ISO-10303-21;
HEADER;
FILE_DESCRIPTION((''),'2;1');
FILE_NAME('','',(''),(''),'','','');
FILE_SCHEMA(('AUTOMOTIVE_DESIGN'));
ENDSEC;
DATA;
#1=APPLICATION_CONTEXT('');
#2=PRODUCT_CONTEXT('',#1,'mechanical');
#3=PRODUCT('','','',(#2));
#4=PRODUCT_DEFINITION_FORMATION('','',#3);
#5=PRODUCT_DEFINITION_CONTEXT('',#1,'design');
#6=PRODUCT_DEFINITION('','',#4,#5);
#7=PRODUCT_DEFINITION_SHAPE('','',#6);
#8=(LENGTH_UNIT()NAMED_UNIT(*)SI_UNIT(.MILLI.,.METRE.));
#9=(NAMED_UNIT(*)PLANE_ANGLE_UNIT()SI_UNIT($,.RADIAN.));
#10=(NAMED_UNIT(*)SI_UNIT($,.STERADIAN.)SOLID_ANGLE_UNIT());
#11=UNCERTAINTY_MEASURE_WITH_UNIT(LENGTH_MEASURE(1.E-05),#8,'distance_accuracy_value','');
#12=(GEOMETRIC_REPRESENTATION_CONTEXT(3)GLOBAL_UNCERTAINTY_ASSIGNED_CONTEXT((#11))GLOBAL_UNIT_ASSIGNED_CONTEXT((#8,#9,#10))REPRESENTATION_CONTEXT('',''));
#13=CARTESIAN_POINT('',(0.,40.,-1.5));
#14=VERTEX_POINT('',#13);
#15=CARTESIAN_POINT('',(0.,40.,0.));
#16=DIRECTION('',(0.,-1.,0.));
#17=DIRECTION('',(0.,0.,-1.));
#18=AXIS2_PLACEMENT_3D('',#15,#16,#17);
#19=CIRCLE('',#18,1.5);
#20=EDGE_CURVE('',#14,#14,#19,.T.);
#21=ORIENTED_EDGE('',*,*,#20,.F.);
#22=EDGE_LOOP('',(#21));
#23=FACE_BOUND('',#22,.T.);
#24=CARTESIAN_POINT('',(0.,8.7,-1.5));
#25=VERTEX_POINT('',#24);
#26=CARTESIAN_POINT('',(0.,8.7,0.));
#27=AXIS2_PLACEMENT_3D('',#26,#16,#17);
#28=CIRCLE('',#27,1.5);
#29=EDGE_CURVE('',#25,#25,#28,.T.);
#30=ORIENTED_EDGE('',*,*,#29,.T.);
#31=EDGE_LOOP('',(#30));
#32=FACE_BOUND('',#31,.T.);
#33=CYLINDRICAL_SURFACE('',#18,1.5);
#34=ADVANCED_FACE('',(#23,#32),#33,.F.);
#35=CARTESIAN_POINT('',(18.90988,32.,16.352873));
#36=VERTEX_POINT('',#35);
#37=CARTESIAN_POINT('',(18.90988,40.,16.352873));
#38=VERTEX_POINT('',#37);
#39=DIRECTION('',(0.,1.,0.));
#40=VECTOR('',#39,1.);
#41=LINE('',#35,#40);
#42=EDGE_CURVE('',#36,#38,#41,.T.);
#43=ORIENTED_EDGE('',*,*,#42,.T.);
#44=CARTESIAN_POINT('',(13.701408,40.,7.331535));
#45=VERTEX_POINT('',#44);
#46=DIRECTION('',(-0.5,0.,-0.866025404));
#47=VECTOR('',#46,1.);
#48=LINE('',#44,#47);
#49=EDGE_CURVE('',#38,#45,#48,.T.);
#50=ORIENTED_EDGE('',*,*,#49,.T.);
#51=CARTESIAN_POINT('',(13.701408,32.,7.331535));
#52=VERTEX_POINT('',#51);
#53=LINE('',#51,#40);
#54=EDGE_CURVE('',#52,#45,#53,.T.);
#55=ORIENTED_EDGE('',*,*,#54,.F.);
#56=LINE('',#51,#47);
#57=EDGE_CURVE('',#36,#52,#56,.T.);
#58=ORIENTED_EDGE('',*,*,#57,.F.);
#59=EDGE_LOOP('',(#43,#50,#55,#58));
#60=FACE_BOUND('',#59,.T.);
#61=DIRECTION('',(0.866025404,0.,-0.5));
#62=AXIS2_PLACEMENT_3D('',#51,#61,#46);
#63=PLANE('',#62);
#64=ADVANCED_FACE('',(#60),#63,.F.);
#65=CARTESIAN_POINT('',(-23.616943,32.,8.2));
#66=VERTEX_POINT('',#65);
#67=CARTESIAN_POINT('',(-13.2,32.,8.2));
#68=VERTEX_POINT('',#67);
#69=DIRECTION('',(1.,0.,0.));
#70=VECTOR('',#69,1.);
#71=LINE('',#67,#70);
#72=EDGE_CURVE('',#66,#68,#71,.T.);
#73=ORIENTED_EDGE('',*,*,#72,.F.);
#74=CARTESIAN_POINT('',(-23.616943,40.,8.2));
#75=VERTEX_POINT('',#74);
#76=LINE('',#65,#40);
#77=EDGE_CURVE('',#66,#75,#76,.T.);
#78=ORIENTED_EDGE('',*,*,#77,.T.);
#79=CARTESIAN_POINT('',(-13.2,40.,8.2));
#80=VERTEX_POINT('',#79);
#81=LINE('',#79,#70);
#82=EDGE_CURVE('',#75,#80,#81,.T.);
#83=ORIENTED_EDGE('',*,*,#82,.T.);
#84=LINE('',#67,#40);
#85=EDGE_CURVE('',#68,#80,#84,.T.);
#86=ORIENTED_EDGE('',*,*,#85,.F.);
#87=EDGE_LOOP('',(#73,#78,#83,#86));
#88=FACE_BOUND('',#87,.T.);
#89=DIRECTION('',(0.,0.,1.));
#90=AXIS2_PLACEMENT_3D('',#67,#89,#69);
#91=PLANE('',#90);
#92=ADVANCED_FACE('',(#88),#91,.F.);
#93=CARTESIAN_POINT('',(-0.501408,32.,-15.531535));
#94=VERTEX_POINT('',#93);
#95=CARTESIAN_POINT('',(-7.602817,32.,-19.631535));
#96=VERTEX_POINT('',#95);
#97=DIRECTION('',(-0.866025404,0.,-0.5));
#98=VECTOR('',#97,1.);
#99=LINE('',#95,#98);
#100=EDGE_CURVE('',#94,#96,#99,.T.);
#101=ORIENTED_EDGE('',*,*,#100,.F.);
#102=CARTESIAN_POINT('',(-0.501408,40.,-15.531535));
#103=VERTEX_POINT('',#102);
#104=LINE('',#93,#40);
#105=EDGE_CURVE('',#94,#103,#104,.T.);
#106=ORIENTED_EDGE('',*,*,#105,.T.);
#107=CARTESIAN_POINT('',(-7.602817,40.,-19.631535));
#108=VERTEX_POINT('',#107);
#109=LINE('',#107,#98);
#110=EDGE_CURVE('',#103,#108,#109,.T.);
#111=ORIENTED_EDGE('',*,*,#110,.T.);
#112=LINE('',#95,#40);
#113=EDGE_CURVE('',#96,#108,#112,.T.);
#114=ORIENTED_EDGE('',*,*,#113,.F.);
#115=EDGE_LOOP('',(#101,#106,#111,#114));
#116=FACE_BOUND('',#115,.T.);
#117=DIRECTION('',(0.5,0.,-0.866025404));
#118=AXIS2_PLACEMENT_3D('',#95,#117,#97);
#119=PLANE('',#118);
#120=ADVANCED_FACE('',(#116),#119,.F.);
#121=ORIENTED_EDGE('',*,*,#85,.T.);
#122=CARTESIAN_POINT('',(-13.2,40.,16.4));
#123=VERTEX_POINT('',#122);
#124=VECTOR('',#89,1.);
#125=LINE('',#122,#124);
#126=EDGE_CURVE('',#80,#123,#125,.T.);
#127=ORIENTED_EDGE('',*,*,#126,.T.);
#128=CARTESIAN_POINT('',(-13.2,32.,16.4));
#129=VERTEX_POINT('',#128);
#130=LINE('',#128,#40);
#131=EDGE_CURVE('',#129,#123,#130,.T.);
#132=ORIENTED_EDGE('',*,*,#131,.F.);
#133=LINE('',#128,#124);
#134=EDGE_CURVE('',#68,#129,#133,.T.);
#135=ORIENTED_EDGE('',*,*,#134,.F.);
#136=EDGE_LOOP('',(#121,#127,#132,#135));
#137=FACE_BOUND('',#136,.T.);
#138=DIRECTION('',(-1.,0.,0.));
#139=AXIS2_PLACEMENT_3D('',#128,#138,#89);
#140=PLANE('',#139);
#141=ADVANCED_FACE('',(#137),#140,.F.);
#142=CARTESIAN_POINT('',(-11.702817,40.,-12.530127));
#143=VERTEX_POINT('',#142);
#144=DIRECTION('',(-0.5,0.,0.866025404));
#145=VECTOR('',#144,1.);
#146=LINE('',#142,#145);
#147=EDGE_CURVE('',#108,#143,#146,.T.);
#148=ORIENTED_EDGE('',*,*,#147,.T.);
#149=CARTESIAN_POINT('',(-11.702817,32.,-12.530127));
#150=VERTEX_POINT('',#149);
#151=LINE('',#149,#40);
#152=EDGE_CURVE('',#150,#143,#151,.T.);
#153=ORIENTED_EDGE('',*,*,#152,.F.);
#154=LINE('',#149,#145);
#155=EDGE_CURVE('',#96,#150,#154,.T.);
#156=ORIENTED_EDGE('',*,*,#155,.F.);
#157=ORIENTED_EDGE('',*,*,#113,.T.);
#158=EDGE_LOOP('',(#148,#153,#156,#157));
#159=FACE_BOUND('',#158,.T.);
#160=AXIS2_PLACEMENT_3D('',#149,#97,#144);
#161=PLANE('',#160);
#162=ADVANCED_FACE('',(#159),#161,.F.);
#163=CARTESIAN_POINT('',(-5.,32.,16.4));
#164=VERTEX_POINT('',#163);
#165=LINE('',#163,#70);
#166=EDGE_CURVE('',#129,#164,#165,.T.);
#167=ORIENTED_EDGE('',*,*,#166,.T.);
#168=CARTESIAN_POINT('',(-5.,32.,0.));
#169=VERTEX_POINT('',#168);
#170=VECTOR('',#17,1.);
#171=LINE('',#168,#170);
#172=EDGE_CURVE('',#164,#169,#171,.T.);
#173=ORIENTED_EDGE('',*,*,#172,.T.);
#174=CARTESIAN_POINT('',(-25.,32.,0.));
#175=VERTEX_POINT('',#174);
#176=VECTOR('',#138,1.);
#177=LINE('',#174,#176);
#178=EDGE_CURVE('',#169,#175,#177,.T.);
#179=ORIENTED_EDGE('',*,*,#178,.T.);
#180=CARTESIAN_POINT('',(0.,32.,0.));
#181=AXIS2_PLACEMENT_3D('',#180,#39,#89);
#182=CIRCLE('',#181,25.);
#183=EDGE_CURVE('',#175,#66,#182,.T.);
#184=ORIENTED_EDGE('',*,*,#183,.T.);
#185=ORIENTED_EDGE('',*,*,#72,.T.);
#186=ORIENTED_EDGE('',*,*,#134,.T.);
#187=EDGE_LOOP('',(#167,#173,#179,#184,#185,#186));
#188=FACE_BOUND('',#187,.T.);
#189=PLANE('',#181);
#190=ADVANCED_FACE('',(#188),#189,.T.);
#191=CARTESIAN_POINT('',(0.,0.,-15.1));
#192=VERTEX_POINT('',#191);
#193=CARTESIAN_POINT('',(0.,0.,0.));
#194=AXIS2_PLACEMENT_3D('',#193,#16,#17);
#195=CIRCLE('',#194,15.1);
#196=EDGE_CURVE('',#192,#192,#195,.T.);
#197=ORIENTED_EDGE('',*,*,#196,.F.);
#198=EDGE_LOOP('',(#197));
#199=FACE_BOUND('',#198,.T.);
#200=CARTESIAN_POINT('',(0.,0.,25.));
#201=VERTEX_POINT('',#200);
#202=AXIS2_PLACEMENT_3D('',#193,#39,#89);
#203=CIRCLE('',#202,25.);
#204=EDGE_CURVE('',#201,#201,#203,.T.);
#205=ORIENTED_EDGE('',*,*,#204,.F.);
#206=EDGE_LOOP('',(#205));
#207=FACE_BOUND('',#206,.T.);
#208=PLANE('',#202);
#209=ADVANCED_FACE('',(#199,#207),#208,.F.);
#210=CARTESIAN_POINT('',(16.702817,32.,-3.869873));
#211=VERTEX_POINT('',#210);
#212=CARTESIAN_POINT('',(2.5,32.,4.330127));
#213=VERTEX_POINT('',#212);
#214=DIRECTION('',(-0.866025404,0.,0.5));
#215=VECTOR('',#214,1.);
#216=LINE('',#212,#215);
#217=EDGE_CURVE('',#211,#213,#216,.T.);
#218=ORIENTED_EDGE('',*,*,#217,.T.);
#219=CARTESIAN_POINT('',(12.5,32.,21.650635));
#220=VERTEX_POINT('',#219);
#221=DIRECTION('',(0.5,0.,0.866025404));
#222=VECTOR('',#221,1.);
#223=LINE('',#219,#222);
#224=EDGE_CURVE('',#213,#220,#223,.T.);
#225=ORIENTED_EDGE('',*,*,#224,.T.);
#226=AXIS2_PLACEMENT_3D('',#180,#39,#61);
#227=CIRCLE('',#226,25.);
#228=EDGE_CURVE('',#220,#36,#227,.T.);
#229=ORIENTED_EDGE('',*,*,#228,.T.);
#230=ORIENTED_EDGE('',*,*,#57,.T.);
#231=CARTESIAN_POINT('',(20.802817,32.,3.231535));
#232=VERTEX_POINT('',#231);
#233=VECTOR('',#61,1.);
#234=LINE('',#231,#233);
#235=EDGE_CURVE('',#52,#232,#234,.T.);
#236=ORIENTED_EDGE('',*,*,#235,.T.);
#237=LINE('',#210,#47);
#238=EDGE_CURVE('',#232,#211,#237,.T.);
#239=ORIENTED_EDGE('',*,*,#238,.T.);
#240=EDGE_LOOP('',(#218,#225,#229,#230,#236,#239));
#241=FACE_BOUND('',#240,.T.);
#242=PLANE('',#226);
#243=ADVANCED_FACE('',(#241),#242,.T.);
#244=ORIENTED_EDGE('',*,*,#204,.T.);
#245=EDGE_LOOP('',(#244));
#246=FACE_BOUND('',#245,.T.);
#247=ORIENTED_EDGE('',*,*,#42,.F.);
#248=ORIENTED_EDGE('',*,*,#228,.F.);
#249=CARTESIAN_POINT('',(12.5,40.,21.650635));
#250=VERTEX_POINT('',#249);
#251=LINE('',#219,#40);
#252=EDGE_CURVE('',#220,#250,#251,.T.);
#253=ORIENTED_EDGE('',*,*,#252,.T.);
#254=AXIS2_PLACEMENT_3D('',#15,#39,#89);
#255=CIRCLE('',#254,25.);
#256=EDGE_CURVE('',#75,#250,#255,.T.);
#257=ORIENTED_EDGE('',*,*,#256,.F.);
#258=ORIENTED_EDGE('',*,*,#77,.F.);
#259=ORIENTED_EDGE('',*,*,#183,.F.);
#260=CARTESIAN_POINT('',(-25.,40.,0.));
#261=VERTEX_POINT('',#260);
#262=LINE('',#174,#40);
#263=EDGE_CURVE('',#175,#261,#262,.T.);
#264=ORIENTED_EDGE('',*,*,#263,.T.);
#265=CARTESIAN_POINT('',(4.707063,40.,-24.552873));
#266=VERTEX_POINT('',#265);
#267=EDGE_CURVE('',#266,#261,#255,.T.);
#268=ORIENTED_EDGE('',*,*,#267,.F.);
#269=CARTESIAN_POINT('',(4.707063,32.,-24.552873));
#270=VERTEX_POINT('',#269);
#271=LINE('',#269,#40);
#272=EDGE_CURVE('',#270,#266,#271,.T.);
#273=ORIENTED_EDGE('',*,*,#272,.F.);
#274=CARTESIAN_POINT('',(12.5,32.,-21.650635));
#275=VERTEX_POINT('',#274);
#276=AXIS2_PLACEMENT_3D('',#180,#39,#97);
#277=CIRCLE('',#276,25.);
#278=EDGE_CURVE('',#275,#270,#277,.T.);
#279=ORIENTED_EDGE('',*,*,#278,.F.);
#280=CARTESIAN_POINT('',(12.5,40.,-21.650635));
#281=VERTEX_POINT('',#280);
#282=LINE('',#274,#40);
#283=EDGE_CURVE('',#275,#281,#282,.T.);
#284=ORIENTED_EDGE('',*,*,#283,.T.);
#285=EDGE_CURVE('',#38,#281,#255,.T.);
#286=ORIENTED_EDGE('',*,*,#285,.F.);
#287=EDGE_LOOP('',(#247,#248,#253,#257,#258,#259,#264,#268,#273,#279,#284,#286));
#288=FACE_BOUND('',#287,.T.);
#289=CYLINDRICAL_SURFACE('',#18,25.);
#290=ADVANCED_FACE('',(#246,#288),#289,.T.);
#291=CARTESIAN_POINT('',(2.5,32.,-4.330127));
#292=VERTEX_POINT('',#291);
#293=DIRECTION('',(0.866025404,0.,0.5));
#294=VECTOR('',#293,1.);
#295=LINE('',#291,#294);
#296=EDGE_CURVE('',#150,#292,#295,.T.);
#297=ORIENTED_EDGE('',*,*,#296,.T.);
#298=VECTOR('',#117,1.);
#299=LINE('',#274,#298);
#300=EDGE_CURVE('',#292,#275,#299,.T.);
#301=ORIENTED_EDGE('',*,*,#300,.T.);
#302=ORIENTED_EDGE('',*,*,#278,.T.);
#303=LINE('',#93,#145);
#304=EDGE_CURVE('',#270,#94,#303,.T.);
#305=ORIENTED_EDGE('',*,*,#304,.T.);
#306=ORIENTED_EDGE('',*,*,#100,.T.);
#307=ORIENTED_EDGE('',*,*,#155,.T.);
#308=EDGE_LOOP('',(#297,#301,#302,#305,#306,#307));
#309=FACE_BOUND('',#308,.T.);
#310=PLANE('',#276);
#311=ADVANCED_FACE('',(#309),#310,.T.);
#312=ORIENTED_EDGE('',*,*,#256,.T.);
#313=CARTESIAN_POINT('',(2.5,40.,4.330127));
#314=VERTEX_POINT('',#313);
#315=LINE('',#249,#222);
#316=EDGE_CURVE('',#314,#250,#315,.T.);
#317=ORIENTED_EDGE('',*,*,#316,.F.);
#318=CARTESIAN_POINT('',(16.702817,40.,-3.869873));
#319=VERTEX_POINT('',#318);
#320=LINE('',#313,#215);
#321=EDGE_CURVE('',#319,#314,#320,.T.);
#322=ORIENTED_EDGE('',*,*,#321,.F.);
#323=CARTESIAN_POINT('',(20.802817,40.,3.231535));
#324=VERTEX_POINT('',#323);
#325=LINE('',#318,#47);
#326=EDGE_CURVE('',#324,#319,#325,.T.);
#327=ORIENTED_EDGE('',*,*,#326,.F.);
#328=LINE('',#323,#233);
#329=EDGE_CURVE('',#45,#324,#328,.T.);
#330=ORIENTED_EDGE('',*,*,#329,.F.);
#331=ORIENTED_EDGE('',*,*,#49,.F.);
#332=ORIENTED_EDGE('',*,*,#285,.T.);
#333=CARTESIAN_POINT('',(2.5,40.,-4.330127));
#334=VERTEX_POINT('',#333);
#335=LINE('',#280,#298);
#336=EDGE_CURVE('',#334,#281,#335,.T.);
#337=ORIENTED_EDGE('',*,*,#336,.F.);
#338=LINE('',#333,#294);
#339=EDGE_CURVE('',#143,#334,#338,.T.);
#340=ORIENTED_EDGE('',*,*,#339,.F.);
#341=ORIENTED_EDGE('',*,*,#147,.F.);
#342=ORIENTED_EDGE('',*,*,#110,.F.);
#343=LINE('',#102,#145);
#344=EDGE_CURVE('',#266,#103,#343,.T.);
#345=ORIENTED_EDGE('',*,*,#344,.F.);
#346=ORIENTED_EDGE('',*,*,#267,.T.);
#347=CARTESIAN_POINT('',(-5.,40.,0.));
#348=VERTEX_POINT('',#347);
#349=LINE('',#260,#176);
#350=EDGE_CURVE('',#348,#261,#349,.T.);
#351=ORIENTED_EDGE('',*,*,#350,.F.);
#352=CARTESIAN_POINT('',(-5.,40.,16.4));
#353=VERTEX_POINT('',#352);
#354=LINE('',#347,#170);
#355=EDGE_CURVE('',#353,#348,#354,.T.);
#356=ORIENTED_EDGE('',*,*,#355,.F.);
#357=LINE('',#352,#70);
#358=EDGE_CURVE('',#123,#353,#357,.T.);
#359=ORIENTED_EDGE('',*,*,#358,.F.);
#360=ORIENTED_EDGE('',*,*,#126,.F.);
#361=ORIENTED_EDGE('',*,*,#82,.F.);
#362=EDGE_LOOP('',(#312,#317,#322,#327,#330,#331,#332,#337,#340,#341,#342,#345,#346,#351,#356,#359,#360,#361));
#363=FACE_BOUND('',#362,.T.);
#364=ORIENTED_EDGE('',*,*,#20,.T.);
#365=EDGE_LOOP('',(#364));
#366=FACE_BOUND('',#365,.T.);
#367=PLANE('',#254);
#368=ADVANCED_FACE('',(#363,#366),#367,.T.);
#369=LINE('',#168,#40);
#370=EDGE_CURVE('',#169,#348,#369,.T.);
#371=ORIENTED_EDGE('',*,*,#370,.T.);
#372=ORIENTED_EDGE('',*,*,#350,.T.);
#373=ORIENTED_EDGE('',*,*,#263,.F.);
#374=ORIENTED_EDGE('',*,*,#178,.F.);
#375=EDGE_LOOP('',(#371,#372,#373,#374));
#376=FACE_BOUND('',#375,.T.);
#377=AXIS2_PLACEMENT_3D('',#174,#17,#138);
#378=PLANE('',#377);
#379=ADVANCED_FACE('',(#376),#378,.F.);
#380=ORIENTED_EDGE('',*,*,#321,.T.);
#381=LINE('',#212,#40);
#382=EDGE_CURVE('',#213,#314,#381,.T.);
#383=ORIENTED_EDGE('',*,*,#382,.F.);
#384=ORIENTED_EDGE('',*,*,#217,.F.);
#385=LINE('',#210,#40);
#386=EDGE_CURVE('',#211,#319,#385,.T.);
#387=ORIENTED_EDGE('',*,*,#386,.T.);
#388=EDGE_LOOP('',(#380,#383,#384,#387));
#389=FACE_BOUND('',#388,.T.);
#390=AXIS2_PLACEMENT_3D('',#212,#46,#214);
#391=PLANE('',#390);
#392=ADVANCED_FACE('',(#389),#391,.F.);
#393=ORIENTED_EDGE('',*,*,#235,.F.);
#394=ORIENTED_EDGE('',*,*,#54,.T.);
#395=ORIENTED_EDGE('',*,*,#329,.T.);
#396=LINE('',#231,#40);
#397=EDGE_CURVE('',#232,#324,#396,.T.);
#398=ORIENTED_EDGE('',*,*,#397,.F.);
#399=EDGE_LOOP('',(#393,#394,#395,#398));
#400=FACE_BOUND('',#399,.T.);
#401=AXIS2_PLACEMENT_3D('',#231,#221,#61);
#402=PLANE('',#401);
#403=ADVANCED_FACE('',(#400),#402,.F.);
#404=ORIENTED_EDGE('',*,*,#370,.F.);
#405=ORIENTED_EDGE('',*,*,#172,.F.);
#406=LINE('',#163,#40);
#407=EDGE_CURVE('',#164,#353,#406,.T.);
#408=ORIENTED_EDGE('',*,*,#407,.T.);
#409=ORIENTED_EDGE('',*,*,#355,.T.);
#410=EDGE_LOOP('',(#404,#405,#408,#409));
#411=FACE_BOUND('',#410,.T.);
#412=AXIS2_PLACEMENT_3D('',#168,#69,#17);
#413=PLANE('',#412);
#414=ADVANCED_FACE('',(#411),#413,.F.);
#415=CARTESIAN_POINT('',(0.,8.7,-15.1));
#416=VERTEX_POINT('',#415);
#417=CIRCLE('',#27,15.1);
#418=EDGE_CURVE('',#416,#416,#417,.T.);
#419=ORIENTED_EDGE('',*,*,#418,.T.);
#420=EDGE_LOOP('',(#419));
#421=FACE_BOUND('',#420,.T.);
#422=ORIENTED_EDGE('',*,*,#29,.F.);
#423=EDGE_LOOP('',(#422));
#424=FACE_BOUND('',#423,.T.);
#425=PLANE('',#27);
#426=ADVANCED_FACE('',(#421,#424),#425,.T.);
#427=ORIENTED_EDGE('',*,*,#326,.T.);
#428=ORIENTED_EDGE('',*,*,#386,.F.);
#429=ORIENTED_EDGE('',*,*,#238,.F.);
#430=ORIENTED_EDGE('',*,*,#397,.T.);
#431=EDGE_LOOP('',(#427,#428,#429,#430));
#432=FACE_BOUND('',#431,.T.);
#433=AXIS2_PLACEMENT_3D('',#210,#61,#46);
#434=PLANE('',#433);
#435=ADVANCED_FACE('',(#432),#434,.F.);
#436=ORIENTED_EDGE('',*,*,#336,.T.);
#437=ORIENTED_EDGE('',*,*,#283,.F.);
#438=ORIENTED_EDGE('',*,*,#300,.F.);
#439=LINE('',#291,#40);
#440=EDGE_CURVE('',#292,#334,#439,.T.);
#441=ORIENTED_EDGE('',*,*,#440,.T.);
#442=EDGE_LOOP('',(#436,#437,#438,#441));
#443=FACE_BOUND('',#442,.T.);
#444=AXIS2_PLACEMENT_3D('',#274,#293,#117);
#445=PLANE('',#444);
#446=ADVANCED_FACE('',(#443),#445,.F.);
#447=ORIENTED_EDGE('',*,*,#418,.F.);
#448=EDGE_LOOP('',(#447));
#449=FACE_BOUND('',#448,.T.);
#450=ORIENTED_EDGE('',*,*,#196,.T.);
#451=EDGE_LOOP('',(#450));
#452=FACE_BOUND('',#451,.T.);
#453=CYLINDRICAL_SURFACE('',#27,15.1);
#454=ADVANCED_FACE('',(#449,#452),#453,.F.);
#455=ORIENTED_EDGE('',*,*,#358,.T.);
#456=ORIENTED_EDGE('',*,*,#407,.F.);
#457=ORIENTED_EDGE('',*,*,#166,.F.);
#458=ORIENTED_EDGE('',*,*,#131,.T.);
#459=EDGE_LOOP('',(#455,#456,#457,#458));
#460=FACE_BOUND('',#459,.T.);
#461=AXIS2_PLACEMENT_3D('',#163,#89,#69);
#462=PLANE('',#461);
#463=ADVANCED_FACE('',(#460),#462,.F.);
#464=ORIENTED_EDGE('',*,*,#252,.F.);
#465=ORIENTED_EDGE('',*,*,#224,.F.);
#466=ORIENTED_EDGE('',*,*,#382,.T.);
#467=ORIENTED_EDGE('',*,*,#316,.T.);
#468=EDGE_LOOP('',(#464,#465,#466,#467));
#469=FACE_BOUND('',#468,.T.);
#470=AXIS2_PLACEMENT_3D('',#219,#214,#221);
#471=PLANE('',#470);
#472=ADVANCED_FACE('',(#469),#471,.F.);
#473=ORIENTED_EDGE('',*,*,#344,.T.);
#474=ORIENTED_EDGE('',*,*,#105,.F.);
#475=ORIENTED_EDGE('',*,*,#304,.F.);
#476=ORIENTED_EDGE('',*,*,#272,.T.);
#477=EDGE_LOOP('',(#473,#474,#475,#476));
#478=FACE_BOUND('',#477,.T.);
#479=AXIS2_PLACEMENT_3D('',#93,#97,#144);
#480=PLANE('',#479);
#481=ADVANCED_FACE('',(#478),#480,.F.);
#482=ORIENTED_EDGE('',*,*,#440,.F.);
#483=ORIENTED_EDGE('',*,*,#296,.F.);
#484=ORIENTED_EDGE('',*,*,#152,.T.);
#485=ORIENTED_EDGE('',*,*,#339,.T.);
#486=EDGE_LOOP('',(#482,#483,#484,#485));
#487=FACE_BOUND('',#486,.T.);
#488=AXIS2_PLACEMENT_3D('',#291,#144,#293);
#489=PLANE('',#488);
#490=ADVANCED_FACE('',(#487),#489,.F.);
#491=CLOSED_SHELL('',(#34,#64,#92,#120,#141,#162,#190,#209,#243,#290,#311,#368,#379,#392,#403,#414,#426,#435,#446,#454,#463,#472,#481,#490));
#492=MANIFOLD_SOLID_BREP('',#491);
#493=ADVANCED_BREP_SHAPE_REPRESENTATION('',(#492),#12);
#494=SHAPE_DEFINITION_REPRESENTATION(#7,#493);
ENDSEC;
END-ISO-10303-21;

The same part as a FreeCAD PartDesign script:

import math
import FreeCAD as App
import Part
import Sketcher

V = App.Vector

doc = App.newDocument("Part")
body = doc.addObject("PartDesign::Body", "Body")

# Sketch on XZ plane
sketch1 = body.newObject("Sketcher::SketchObject", "Sketch")
sketch1.AttachmentSupport = (doc.getObject("XZ_Plane"), [""])
sketch1.MapMode = "FlatFace"
sketch1.addGeometry(Part.Circle(V(0, 0, 0), V(0, 0, 1), 25), False)
sketch1.addConstraint(Sketcher.Constraint("Coincident", 0, 3, -1, 1))
sketch1.addConstraint(Sketcher.Constraint("Diameter", 0, 50.0))
pad1 = body.newObject("PartDesign::Pad", "Pad")
pad1.Profile = sketch1
pad1.Length = 40
pad1.Reversed = True

# Sketch on XZ plane
sketch2 = body.newObject("Sketcher::SketchObject", "Sketch001")
sketch2.AttachmentSupport = (doc.getObject("XZ_Plane"), [""])
sketch2.MapMode = "FlatFace"
sketch2.AttachmentOffset = App.Placement(V(0, 0, -32), App.Rotation())
sketch2.addGeometry(Part.LineSegment(V(-5, 0, 0), V(-25, 0, 0)), False)
sketch2.addGeometry(Part.ArcOfCircle(Part.Circle(V(0, 0, 0), V(0, 0, 1), 25), math.radians(160.85), math.radians(180)), False)
sketch2.addGeometry(Part.LineSegment(V(-24, 8, 0), V(-13, 8, 0)), False)
sketch2.addGeometry(Part.LineSegment(V(-13, 8, 0), V(-13, 16, 0)), False)
sketch2.addGeometry(Part.LineSegment(V(-13, 16, 0), V(-5, 16, 0)), False)
sketch2.addGeometry(Part.LineSegment(V(-5, 16, 0), V(-5, 0, 0)), False)
sketch2.addConstraint(Sketcher.Constraint("Coincident", 0, 2, 1, 2))
sketch2.addConstraint(Sketcher.Constraint("Coincident", 1, 1, 2, 1))
sketch2.addConstraint(Sketcher.Constraint("Coincident", 2, 2, 3, 1))
sketch2.addConstraint(Sketcher.Constraint("Coincident", 3, 2, 4, 1))
sketch2.addConstraint(Sketcher.Constraint("Coincident", 4, 2, 5, 1))
sketch2.addConstraint(Sketcher.Constraint("Coincident", 5, 2, 0, 1))
sketch2.addConstraint(Sketcher.Constraint("Horizontal", 0))
sketch2.addConstraint(Sketcher.Constraint("Horizontal", 2))
sketch2.addConstraint(Sketcher.Constraint("Vertical", 3))
sketch2.addConstraint(Sketcher.Constraint("Horizontal", 4))
sketch2.addConstraint(Sketcher.Constraint("Vertical", 5))
sketch2.addConstraint(Sketcher.Constraint("Coincident", 1, 3, -1, 1))
sketch2.addConstraint(Sketcher.Constraint("PointOnObject", 0, 2, -1))
sketch2.addConstraint(Sketcher.Constraint("Equal", 4, 3))
sketch2.addConstraint(Sketcher.Constraint("Radius", 1, 25.0))
sketch2.addConstraint(Sketcher.Constraint("DistanceX", 0, 2, 0, 1, 20.0))
sketch2.addConstraint(Sketcher.Constraint("DistanceX", 4, 1, 4, 2, 8.2))
sketch2.addConstraint(Sketcher.Constraint("DistanceY", 5, 2, 5, 1, 16.4))
pocket1 = body.newObject("PartDesign::Pocket", "Pocket")
pocket1.Profile = sketch2
pocket1.Length = 8
doc.recompute()

polarpattern = body.newObject("PartDesign::PolarPattern", "PolarPattern")
polarpattern.Originals = [pocket1]
polarpattern.Axis = (doc.getObject("Y_Axis"), [""])
polarpattern.Angle = 360
polarpattern.Occurrences = 3
body.Tip = polarpattern

# Sketch on XZ plane
sketch3 = body.newObject("Sketcher::SketchObject", "Sketch002")
sketch3.AttachmentSupport = (doc.getObject("XZ_Plane"), [""])
sketch3.MapMode = "FlatFace"
sketch3.addGeometry(Part.Circle(V(0, 0, 0), V(0, 0, 1), 15), False)
sketch3.addConstraint(Sketcher.Constraint("Coincident", 0, 3, -1, 1))
sketch3.addConstraint(Sketcher.Constraint("Diameter", 0, 30.2))
pocket2 = body.newObject("PartDesign::Pocket", "Pocket001")
pocket2.Profile = sketch3
pocket2.Length = 8.7

# Sketch on XZ plane
sketch4 = body.newObject("Sketcher::SketchObject", "Sketch003")
sketch4.AttachmentSupport = (doc.getObject("XZ_Plane"), [""])
sketch4.MapMode = "FlatFace"
sketch4.AttachmentOffset = App.Placement(V(0, 0, -8.7), App.Rotation())
sketch4.addGeometry(Part.Circle(V(0, 0, 0), V(0, 0, 1), 1.5), False)
sketch4.addConstraint(Sketcher.Constraint("Coincident", 0, 3, -1, 1))
sketch4.addConstraint(Sketcher.Constraint("Diameter", 0, 3.0))
pocket3 = body.newObject("PartDesign::Pocket", "Pocket002")
pocket3.Profile = sketch4
pocket3.Type = "ThroughAll"

doc.recompute()
